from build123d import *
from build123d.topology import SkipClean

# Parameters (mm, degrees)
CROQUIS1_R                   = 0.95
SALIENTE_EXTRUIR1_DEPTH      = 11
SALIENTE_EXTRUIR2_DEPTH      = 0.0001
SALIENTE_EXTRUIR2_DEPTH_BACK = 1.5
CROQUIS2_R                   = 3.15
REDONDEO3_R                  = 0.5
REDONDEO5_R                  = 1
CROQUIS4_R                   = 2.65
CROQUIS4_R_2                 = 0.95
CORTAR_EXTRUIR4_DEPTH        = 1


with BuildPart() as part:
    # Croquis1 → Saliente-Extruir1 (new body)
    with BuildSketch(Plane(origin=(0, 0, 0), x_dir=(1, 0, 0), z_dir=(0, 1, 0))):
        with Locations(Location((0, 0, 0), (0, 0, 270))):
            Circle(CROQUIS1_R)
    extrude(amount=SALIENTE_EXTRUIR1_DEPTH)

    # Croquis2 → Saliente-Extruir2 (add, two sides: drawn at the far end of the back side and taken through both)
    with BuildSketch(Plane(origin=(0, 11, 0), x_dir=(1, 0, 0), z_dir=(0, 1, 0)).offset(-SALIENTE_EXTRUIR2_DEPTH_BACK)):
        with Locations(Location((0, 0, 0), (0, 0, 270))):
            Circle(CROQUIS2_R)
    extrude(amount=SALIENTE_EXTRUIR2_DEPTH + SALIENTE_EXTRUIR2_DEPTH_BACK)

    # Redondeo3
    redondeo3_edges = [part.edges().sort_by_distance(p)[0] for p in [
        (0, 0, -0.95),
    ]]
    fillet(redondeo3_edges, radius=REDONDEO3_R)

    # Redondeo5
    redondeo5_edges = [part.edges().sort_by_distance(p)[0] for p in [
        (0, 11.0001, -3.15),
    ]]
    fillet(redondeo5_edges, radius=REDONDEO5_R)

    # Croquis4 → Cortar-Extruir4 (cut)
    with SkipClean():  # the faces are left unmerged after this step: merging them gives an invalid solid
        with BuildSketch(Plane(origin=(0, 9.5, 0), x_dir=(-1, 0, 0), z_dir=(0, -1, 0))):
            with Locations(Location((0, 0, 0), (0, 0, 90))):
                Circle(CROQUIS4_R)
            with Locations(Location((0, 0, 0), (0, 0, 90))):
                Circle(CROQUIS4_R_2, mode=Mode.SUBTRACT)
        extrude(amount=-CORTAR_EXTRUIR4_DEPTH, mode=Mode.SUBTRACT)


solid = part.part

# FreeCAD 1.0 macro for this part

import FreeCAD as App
import Part
import Sketcher
from FreeCAD import Vector


def edges_at(feature, points):
    """Names of the edges that pass closest to the given points."""
    edges = feature.Shape.Edges
    near = lambda p: min(range(len(edges)), key=lambda i: edges[i].distToShape(Part.Vertex(*p))[0])
    return sorted({f"Edge{near(p) + 1}" for p in points})

doc = App.newDocument("Part")
body = doc.addObject("PartDesign::Body", "Body")

# Sketch on XZ plane
sketch1 = body.newObject("Sketcher::SketchObject", "Sketch")
sketch1.AttachmentSupport = (doc.getObject("XZ_Plane"), [""])
sketch1.MapMode = "FlatFace"
sketch1.addGeometry(Part.Circle(Vector(0, 0, 0), Vector(0, 0, 1), 0.95), False)
sketch1.addConstraint([
    Sketcher.Constraint("Coincident", 0, 3, -1, 1),
    Sketcher.Constraint("Diameter", 0, 1.9),
])
pad1 = body.newObject("PartDesign::Pad", "Pad")
pad1.Profile = sketch1
pad1.Length = 11
pad1.Reversed = True

# Sketch on XZ plane
sketch2 = body.newObject("Sketcher::SketchObject", "Sketch001")
sketch2.AttachmentSupport = (doc.getObject("XZ_Plane"), [""])
sketch2.MapMode = "FlatFace"
sketch2.AttachmentOffset = App.Placement(Vector(0, 0, -11), App.Rotation())
sketch2.addGeometry(Part.Circle(Vector(0, 0, 0), Vector(0, 0, 1), 3.15), False)
sketch2.addConstraint([
    Sketcher.Constraint("Coincident", 0, 3, -1, 1),
    Sketcher.Constraint("Diameter", 0, 6.3),
])
pad2 = body.newObject("PartDesign::Pad", "Pad001")
pad2.Profile = sketch2
pad2.Type = "TwoLengths"
pad2.Length = 0.0001
pad2.Length2 = 1.5
pad2.Reversed = True
doc.recompute()

fillet = body.newObject("PartDesign::Fillet", "Fillet")
fillet.Base = (pad2, edges_at(pad2, [(0, 0, -0.95)]))
fillet.Radius = 0.5
doc.recompute()

fillet2 = body.newObject("PartDesign::Fillet", "Fillet001")
fillet2.Base = (fillet, edges_at(fillet, [(0, 11, -3.15)]))
fillet2.Radius = 1

# Sketch on XZ plane
sketch3 = body.newObject("Sketcher::SketchObject", "Sketch002")
sketch3.AttachmentSupport = (doc.getObject("XZ_Plane"), [""])
sketch3.MapMode = "FlatFace"
sketch3.AttachmentOffset = App.Placement(Vector(0, 0, -9.5), App.Rotation())
sketch3.addGeometry([
    Part.Circle(Vector(0, 0, 0), Vector(0, 0, 1), 2.65),
    Part.Circle(Vector(0, 0, 0), Vector(0, 0, 1), 0.95),
], False)
sketch3.addConstraint([
    Sketcher.Constraint("Coincident", 0, 3, -1, 1),
    Sketcher.Constraint("Coincident", 1, 3, -1, 1),
    Sketcher.Constraint("Diameter", 0, 5.3),
    Sketcher.Constraint("Diameter", 1, 1.9),
])
pocket1 = body.newObject("PartDesign::Pocket", "Pocket")
pocket1.Profile = sketch3
pocket1.Length = 1

doc.recompute()
